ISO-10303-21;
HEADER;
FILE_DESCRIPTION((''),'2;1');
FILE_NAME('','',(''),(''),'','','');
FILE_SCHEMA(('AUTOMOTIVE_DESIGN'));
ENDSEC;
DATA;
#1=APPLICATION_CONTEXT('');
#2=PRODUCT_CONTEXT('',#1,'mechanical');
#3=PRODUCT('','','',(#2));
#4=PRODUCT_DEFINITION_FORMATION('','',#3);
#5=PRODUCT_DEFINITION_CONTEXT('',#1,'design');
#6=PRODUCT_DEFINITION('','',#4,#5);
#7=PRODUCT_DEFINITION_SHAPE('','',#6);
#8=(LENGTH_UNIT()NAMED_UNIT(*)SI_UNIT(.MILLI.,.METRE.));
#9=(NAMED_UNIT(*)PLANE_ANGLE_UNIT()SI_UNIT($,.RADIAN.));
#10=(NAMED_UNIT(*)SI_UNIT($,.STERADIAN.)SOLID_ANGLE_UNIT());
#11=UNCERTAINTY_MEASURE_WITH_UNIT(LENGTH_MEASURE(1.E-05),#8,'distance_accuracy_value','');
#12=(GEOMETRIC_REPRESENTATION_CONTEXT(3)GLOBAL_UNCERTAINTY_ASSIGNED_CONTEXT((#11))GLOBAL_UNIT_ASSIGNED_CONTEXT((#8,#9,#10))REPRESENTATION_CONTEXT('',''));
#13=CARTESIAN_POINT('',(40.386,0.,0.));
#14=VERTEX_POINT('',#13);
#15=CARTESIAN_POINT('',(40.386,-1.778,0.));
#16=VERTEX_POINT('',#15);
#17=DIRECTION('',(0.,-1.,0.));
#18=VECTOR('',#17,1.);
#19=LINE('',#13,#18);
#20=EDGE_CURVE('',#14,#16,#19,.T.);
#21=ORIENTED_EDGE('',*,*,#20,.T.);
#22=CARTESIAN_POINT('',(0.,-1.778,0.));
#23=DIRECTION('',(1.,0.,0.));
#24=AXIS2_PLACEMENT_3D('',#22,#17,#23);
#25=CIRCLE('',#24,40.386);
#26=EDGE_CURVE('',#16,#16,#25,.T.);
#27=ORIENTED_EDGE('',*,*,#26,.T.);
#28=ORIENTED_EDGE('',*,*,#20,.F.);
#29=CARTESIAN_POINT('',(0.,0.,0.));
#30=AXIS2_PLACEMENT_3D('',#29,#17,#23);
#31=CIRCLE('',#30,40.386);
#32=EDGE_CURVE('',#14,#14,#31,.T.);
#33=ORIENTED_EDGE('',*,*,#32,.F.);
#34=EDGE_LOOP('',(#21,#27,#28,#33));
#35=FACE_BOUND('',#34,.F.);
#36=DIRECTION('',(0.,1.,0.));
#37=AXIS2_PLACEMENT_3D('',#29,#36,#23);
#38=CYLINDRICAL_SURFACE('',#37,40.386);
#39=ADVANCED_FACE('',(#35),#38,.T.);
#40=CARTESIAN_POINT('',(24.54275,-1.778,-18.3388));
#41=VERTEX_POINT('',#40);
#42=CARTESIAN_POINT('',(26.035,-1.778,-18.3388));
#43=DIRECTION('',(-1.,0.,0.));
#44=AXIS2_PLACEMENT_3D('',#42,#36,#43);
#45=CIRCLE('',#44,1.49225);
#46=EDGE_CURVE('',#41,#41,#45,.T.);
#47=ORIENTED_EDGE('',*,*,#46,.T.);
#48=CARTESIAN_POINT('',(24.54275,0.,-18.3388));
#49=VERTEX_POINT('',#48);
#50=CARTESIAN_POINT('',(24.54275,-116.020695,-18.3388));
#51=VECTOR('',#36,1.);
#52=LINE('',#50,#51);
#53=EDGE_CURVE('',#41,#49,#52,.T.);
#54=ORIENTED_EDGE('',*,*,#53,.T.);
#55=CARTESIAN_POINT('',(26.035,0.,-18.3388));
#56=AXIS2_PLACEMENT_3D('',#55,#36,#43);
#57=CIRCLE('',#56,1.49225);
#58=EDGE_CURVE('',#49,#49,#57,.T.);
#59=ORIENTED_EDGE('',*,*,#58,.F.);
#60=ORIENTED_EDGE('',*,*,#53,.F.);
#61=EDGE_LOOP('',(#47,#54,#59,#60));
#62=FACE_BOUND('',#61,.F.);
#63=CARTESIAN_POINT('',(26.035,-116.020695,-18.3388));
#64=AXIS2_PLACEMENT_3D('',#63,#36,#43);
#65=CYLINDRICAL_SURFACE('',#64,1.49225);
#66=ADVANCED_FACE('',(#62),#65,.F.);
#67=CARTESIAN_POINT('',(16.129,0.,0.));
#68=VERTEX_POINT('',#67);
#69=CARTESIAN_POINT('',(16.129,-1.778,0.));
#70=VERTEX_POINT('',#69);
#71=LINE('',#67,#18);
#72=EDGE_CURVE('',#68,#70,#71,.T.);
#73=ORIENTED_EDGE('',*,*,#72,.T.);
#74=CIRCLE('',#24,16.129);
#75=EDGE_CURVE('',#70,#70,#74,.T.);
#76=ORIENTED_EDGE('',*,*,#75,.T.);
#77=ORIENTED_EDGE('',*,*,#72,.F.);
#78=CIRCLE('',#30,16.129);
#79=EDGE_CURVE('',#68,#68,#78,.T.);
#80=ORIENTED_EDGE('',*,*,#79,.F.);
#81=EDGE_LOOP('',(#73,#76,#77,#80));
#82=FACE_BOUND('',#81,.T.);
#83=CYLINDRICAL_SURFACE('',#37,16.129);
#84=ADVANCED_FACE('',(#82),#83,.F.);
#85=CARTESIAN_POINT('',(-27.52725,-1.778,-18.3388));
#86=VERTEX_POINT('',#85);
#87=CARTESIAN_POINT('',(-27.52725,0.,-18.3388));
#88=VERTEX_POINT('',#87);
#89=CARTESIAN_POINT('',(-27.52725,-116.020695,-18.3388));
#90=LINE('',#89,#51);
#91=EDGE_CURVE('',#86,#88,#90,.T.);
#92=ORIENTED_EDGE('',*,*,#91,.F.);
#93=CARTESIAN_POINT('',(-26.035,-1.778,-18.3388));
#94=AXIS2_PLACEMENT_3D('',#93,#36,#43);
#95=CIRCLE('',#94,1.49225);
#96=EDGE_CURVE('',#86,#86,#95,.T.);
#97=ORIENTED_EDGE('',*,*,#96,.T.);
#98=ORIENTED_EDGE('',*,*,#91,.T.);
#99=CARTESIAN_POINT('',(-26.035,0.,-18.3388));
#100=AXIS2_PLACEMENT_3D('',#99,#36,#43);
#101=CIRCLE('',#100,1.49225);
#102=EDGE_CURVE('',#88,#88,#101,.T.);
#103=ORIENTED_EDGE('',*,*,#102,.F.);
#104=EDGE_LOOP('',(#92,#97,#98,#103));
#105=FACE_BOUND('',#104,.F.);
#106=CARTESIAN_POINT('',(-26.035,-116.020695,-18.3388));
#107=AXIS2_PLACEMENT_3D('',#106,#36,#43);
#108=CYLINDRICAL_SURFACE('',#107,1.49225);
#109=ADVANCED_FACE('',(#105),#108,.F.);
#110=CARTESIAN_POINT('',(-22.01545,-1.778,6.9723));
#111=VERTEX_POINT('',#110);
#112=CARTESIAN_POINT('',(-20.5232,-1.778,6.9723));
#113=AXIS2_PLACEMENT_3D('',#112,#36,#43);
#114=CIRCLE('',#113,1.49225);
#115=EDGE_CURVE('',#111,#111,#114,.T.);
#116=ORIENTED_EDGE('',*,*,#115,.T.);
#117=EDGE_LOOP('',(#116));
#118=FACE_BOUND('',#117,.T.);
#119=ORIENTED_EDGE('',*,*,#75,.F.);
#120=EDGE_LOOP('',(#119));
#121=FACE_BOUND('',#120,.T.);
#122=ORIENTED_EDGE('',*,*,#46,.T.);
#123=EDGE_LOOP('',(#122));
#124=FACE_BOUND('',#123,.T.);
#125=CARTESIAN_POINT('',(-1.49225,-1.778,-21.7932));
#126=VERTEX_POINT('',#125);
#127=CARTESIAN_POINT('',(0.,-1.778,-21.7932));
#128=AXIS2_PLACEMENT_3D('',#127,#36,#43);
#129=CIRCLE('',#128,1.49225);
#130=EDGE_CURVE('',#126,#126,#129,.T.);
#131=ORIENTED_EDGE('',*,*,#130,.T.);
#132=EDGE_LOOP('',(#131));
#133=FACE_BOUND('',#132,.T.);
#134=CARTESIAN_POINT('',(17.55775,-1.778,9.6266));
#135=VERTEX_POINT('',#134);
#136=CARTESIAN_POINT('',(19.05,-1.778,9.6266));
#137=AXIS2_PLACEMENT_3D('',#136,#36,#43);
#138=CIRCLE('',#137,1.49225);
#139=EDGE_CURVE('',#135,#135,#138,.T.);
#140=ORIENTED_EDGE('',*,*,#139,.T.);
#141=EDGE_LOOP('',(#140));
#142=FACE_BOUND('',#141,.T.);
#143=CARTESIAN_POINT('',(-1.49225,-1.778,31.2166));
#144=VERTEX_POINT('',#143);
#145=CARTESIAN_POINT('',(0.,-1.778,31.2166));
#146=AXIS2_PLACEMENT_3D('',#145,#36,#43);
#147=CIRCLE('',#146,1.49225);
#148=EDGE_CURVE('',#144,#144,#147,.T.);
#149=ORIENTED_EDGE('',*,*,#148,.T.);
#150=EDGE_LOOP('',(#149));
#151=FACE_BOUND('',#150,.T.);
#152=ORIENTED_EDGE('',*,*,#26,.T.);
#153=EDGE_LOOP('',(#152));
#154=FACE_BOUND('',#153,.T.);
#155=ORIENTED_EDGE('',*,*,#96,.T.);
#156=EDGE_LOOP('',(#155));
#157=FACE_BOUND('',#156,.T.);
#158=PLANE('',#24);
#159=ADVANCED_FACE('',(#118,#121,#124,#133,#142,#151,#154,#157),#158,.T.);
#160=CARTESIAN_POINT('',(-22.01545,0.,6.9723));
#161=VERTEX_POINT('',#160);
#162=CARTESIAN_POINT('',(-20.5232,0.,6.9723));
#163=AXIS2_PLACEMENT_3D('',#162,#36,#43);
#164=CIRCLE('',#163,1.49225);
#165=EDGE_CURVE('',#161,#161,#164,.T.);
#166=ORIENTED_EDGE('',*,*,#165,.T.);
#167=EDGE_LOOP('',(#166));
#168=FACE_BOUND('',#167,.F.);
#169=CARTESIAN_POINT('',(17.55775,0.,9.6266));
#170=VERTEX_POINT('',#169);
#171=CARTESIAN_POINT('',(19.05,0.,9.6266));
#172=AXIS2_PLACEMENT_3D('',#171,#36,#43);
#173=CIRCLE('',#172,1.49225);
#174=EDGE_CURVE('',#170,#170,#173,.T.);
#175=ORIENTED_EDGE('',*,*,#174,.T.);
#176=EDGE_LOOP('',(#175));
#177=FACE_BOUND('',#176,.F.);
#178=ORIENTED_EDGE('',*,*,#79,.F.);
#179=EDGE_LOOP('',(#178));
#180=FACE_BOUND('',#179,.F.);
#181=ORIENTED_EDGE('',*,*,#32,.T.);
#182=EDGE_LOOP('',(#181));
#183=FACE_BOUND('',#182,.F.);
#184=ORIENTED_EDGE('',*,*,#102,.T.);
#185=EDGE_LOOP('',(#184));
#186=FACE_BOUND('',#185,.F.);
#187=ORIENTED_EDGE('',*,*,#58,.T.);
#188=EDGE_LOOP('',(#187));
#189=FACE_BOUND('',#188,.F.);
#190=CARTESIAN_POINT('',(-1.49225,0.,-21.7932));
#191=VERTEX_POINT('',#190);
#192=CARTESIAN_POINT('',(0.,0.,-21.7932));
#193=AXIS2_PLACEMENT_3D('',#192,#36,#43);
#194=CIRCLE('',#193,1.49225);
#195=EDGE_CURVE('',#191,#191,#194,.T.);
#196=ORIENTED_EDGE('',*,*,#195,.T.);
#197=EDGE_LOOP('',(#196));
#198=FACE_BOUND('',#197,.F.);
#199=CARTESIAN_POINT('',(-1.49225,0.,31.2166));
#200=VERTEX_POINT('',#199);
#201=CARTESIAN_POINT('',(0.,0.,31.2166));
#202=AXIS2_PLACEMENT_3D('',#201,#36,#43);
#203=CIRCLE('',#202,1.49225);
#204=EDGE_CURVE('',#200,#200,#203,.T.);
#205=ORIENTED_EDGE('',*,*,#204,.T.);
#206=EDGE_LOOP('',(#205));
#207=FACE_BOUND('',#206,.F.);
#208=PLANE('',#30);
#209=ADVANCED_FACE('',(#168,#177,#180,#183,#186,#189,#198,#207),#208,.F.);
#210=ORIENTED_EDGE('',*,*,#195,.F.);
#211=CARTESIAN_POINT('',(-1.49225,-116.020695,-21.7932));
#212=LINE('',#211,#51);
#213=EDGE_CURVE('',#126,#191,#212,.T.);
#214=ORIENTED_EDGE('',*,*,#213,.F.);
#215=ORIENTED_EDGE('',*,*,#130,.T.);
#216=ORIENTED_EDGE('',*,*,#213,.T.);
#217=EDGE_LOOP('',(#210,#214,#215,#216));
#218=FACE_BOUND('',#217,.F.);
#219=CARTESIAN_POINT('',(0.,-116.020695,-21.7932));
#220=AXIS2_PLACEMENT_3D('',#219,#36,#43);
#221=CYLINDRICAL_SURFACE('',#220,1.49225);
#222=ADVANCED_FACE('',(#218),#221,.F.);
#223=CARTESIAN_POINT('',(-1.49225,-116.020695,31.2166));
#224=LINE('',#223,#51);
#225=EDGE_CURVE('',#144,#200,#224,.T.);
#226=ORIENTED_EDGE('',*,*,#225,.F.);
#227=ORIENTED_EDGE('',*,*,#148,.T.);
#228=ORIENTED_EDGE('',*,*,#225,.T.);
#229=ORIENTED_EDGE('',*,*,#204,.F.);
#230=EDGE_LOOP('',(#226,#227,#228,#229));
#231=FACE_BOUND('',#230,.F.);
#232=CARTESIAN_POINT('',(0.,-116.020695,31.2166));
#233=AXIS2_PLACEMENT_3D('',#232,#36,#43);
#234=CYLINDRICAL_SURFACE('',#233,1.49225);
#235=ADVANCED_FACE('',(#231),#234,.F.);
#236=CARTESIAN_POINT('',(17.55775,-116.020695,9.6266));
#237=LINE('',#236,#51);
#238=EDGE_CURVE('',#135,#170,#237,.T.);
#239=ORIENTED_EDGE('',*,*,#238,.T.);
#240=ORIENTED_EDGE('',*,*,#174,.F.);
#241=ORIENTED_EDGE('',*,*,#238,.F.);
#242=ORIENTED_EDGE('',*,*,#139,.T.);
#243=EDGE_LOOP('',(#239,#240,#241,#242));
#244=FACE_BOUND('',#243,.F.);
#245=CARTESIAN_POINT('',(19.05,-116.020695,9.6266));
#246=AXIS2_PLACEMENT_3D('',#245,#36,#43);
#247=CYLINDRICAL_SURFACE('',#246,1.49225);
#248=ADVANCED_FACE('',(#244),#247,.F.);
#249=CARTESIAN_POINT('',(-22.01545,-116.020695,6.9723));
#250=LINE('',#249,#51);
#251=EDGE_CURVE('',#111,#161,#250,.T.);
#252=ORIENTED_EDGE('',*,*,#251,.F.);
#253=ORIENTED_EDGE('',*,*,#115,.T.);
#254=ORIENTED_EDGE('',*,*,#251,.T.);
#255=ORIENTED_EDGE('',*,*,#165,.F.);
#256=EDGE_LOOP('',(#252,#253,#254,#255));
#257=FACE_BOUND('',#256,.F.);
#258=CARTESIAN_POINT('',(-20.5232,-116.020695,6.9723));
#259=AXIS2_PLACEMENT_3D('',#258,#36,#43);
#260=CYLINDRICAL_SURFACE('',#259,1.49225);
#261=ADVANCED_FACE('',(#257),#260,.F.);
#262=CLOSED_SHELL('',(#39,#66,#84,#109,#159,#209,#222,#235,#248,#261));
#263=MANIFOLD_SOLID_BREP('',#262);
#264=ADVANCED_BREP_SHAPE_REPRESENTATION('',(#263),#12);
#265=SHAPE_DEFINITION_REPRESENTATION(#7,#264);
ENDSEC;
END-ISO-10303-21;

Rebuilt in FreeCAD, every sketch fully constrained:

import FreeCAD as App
import Part
import Sketcher
from FreeCAD import Vector
Q = App.Units.Quantity

doc = App.newDocument("Part")
body = doc.addObject("PartDesign::Body", "Body")

# Sketch on XZ plane
sketch1 = doc.addObject("Sketcher::SketchObject", "Sketch")
body.addObject(sketch1)
sketch1.AttachmentSupport = (doc.XZ_Plane, [""])
sketch1.MapMode = "FlatFace"
sketch1.addGeometry([
    Part.Circle(Vector(0, 0, 0), Vector(0, 0, 1), 40),
    Part.Circle(Vector(0, 0, 0), Vector(0, 0, 1), 16),
], False)
sketch1.addConstraint([
    Sketcher.Constraint("Coincident", 0, 3, -1, 1),
    Sketcher.Constraint("Coincident", 1, 3, -1, 1),
    Sketcher.Constraint("Diameter", 0, Q("3.18 in")),
    Sketcher.Constraint("Diameter", 1, Q("1.27 in")),
])
pad1 = doc.addObject("PartDesign::Pad", "Pad")
body.addObject(pad1)
pad1.Profile = sketch1
pad1.Length = Q("0.07 in")

# Sketch on XZ plane
sketch2 = doc.addObject("Sketcher::SketchObject", "Sketch001")
body.addObject(sketch2)
sketch2.AttachmentSupport = (doc.XZ_Plane, [""])
sketch2.MapMode = "FlatFace"
sketch2.AttachmentOffset = App.Placement(Vector(0, 0, 0.07 * 25.4), App.Rotation())
sketch2.addGeometry([
    Part.Circle(Vector(0, 31.2, 0), Vector(0, 0, 1), 1.5),  # 0
    Part.Circle(Vector(19.1, 9.6, 0), Vector(0, 0, 1), 1.5),  # 1
    Part.Circle(Vector(26, -18.3, 0), Vector(0, 0, 1), 1.5),  # 2
    Part.Circle(Vector(0, -21.8, 0), Vector(0, 0, 1), 1.5),  # 3
    Part.Circle(Vector(-26, -18.3, 0), Vector(0, 0, 1), 1.5),  # 4
    Part.Circle(Vector(-20.5, 7, 0), Vector(0, 0, 1), 1.5),  # 5
], False)
sketch2.addConstraint([
    Sketcher.Constraint("Equal", 0, 1),
    Sketcher.Constraint("Equal", 1, 2),
    Sketcher.Constraint("Equal", 2, 3),
    Sketcher.Constraint("Equal", 3, 4),
    Sketcher.Constraint("Equal", 4, 5),
    Sketcher.Constraint("Symmetric", 2, 3, 4, 3, -2),
    Sketcher.Constraint("PointOnObject", 0, 3, -2),
    Sketcher.Constraint("PointOnObject", 3, 3, -2),
    Sketcher.Constraint("Diameter", 0, Q("0.1175 in")),
    Sketcher.Constraint("DistanceX", -1, 1, 1, 3, Q("0.75 in")),
    Sketcher.Constraint("DistanceY", 1, 3, 0, 3, Q("0.85 in")),
    Sketcher.Constraint("DistanceX", 4, 3, 2, 3, Q("2.05 in")),
    Sketcher.Constraint("DistanceY", -1, 1, 0, 3, Q("1.229 in")),
    Sketcher.Constraint("DistanceY", 2, 3, -1, 1, Q("0.722 in")),
    Sketcher.Constraint("DistanceY", 3, 3, -1, 1, Q("0.858 in")),
    Sketcher.Constraint("DistanceX", 5, 3, -1, 1, Q("0.808 in")),
    Sketcher.Constraint("DistanceY", -1, 1, 5, 3, Q("0.2745 in")),
])
doc.recompute()
hole = doc.addObject("PartDesign::Hole", "Hole")
body.addObject(hole)
hole.Profile = sketch2
hole.ThreadType = "None"
hole.Diameter = Q("0.1175 in")
hole.DepthType = "ThroughAll"

doc.recompute()
